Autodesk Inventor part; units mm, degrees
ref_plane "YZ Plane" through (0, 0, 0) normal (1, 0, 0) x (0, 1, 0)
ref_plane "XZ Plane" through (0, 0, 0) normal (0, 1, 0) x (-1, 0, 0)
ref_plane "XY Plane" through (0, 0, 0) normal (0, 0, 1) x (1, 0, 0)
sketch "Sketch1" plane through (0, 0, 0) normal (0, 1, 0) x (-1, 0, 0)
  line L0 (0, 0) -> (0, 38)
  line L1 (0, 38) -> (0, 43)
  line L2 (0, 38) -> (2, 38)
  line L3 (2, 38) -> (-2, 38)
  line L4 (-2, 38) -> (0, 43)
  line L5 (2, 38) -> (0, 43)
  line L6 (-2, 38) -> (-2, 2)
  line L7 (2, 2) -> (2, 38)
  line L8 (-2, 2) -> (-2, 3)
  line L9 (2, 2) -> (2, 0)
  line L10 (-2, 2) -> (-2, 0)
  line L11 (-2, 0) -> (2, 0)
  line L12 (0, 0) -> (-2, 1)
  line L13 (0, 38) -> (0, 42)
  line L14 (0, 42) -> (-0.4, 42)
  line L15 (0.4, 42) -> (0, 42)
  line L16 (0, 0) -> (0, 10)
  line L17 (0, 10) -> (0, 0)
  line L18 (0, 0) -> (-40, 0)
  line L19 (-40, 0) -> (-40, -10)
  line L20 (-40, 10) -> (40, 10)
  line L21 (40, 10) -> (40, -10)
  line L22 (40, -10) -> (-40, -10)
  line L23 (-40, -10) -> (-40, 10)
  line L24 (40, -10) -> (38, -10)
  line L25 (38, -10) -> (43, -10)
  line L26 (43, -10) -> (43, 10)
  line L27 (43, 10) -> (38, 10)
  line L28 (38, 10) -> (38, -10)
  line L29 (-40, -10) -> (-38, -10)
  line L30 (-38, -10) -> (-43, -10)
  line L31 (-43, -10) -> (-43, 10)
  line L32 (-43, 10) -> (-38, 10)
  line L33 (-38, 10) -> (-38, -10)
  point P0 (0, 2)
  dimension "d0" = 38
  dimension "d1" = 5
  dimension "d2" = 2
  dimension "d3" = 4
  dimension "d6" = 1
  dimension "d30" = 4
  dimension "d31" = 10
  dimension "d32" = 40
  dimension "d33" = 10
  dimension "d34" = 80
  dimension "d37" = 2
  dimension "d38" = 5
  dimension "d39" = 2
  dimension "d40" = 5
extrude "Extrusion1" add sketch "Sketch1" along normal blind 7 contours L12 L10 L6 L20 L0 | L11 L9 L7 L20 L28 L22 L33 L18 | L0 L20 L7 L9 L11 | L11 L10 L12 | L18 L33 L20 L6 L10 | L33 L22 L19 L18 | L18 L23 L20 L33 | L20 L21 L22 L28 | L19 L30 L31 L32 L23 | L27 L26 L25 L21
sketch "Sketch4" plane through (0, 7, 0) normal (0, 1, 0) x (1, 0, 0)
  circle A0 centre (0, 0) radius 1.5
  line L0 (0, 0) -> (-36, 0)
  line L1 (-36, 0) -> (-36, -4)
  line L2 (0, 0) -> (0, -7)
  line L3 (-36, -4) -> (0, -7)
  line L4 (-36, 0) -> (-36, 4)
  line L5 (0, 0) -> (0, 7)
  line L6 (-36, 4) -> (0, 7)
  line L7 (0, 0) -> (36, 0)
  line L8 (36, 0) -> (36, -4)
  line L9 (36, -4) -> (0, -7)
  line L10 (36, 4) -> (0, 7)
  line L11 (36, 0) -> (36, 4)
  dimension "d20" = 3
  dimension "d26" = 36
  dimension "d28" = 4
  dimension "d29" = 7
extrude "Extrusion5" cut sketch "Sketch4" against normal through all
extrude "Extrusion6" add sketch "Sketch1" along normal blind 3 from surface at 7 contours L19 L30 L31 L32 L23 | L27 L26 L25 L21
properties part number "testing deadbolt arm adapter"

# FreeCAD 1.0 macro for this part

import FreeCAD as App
import Part
import Sketcher

V = App.Vector


def add_polygon(sketch, points):
    """Adds a closed chain of lines whose ends are joined by coincident constraints."""
    first, n = sketch.GeometryCount, len(points)
    for a, b in zip(points, points[1:] + points[:1]):
        sketch.addGeometry(Part.LineSegment(App.Vector(*a, 0), App.Vector(*b, 0)), False)
    for i in range(n):
        sketch.addConstraint(Sketcher.Constraint("Coincident", first + i, 2, first + (i + 1) % n, 1))

doc = App.newDocument("Part")
body = doc.addObject("PartDesign::Body", "Body")

sketch1 = doc.addObject("Sketcher::SketchObject", "Sketch")
body.addObject(sketch1)
sketch1.AttachmentSupport = (doc.XZ_Plane, [""])
sketch1.MapMode = "FlatFace"
add_polygon(sketch1, [(43, 10), (43, -10), (-43, -10), (-43, 10)])
sketch1.addConstraint([
    Sketcher.Constraint("Vertical", 0),
    Sketcher.Constraint("Horizontal", 1),
    Sketcher.Constraint("Vertical", 2),
    Sketcher.Constraint("Horizontal", 3),
    Sketcher.Constraint("Symmetric", 0, 2, 2, 2, -1, 1),
    Sketcher.Constraint("DistanceY", 0, 2, -1, 1, 10.0),
    Sketcher.Constraint("DistanceX", 1, 2, 1, 1, 86.0),
])
pad1 = doc.addObject("PartDesign::Pad", "Pad")
body.addObject(pad1)
pad1.Profile = sketch1
pad1.Length = 7
pad1.Reversed = True

sketch2 = doc.addObject("Sketcher::SketchObject", "Sketch001")
body.addObject(sketch2)
sketch2.AttachmentSupport = (doc.XZ_Plane, [""])
sketch2.MapMode = "FlatFace"
sketch2.AttachmentOffset = App.Placement(V(0, 0, -7), App.Rotation())
add_polygon(sketch2, [(36, -4), (0, -7), (-36, -4), (-36, 4), (0, 7), (36, 4)])
sketch2.addConstraint([
    Sketcher.Constraint("Vertical", 2),
    Sketcher.Constraint("Vertical", 5),
    Sketcher.Constraint("Symmetric", 0, 2, 3, 2, -1, 1),
    Sketcher.Constraint("Symmetric", 1, 2, 4, 2, -1, 1),
    Sketcher.Constraint("PointOnObject", 0, 2, -2),
    Sketcher.Constraint("Parallel", 0, 3),
    Sketcher.Constraint("Horizontal", 2, 2, 4, 2),
    Sketcher.Constraint("DistanceY", 0, 2, -1, 1, 7.0),
    Sketcher.Constraint("DistanceX", 1, 2, -1, 1, 36.0),
    Sketcher.Constraint("DistanceY", 1, 2, -1, 1, 4.0),
])
pocket1 = doc.addObject("PartDesign::Pocket", "Pocket")
body.addObject(pocket1)
pocket1.Profile = sketch2
pocket1.Type = "ThroughAll"
pocket1.Reversed = True

sketch3 = doc.addObject("Sketcher::SketchObject", "Sketch002")
body.addObject(sketch3)
sketch3.AttachmentSupport = (doc.XZ_Plane, [""])
sketch3.MapMode = "FlatFace"
sketch3.AttachmentOffset = App.Placement(V(0, 0, -7), App.Rotation())
add_polygon(sketch3, [(40, -10), (40, 10), (43, 10), (43, -10)])
add_polygon(sketch3, [(-43, 10), (-40, 10), (-40, -10), (-43, -10)])
sketch3.addConstraint([
    Sketcher.Constraint("Vertical", 0),
    Sketcher.Constraint("Horizontal", 1),
    Sketcher.Constraint("Vertical", 2),
    Sketcher.Constraint("Horizontal", 3),
    Sketcher.Constraint("Horizontal", 4),
    Sketcher.Constraint("Vertical", 5),
    Sketcher.Constraint("Horizontal", 6),
    Sketcher.Constraint("Vertical", 7),
    Sketcher.Constraint("Symmetric", 3, 2, 4, 2, -1, 1),
    Sketcher.Constraint("Symmetric", 1, 2, 6, 2, -1, 1),
    Sketcher.Constraint("Horizontal", 1, 2, 4, 2),
    Sketcher.Constraint("DistanceX", -1, 1, 0, 2, 40.0),
    Sketcher.Constraint("DistanceY", -1, 1, 0, 2, 10.0),
    Sketcher.Constraint("DistanceX", 1, 1, 1, 2, 3.0),
])
pad2 = doc.addObject("PartDesign::Pad", "Pad001")
body.addObject(pad2)
pad2.Profile = sketch3
pad2.Length = 3
pad2.Reversed = True

doc.recompute()
